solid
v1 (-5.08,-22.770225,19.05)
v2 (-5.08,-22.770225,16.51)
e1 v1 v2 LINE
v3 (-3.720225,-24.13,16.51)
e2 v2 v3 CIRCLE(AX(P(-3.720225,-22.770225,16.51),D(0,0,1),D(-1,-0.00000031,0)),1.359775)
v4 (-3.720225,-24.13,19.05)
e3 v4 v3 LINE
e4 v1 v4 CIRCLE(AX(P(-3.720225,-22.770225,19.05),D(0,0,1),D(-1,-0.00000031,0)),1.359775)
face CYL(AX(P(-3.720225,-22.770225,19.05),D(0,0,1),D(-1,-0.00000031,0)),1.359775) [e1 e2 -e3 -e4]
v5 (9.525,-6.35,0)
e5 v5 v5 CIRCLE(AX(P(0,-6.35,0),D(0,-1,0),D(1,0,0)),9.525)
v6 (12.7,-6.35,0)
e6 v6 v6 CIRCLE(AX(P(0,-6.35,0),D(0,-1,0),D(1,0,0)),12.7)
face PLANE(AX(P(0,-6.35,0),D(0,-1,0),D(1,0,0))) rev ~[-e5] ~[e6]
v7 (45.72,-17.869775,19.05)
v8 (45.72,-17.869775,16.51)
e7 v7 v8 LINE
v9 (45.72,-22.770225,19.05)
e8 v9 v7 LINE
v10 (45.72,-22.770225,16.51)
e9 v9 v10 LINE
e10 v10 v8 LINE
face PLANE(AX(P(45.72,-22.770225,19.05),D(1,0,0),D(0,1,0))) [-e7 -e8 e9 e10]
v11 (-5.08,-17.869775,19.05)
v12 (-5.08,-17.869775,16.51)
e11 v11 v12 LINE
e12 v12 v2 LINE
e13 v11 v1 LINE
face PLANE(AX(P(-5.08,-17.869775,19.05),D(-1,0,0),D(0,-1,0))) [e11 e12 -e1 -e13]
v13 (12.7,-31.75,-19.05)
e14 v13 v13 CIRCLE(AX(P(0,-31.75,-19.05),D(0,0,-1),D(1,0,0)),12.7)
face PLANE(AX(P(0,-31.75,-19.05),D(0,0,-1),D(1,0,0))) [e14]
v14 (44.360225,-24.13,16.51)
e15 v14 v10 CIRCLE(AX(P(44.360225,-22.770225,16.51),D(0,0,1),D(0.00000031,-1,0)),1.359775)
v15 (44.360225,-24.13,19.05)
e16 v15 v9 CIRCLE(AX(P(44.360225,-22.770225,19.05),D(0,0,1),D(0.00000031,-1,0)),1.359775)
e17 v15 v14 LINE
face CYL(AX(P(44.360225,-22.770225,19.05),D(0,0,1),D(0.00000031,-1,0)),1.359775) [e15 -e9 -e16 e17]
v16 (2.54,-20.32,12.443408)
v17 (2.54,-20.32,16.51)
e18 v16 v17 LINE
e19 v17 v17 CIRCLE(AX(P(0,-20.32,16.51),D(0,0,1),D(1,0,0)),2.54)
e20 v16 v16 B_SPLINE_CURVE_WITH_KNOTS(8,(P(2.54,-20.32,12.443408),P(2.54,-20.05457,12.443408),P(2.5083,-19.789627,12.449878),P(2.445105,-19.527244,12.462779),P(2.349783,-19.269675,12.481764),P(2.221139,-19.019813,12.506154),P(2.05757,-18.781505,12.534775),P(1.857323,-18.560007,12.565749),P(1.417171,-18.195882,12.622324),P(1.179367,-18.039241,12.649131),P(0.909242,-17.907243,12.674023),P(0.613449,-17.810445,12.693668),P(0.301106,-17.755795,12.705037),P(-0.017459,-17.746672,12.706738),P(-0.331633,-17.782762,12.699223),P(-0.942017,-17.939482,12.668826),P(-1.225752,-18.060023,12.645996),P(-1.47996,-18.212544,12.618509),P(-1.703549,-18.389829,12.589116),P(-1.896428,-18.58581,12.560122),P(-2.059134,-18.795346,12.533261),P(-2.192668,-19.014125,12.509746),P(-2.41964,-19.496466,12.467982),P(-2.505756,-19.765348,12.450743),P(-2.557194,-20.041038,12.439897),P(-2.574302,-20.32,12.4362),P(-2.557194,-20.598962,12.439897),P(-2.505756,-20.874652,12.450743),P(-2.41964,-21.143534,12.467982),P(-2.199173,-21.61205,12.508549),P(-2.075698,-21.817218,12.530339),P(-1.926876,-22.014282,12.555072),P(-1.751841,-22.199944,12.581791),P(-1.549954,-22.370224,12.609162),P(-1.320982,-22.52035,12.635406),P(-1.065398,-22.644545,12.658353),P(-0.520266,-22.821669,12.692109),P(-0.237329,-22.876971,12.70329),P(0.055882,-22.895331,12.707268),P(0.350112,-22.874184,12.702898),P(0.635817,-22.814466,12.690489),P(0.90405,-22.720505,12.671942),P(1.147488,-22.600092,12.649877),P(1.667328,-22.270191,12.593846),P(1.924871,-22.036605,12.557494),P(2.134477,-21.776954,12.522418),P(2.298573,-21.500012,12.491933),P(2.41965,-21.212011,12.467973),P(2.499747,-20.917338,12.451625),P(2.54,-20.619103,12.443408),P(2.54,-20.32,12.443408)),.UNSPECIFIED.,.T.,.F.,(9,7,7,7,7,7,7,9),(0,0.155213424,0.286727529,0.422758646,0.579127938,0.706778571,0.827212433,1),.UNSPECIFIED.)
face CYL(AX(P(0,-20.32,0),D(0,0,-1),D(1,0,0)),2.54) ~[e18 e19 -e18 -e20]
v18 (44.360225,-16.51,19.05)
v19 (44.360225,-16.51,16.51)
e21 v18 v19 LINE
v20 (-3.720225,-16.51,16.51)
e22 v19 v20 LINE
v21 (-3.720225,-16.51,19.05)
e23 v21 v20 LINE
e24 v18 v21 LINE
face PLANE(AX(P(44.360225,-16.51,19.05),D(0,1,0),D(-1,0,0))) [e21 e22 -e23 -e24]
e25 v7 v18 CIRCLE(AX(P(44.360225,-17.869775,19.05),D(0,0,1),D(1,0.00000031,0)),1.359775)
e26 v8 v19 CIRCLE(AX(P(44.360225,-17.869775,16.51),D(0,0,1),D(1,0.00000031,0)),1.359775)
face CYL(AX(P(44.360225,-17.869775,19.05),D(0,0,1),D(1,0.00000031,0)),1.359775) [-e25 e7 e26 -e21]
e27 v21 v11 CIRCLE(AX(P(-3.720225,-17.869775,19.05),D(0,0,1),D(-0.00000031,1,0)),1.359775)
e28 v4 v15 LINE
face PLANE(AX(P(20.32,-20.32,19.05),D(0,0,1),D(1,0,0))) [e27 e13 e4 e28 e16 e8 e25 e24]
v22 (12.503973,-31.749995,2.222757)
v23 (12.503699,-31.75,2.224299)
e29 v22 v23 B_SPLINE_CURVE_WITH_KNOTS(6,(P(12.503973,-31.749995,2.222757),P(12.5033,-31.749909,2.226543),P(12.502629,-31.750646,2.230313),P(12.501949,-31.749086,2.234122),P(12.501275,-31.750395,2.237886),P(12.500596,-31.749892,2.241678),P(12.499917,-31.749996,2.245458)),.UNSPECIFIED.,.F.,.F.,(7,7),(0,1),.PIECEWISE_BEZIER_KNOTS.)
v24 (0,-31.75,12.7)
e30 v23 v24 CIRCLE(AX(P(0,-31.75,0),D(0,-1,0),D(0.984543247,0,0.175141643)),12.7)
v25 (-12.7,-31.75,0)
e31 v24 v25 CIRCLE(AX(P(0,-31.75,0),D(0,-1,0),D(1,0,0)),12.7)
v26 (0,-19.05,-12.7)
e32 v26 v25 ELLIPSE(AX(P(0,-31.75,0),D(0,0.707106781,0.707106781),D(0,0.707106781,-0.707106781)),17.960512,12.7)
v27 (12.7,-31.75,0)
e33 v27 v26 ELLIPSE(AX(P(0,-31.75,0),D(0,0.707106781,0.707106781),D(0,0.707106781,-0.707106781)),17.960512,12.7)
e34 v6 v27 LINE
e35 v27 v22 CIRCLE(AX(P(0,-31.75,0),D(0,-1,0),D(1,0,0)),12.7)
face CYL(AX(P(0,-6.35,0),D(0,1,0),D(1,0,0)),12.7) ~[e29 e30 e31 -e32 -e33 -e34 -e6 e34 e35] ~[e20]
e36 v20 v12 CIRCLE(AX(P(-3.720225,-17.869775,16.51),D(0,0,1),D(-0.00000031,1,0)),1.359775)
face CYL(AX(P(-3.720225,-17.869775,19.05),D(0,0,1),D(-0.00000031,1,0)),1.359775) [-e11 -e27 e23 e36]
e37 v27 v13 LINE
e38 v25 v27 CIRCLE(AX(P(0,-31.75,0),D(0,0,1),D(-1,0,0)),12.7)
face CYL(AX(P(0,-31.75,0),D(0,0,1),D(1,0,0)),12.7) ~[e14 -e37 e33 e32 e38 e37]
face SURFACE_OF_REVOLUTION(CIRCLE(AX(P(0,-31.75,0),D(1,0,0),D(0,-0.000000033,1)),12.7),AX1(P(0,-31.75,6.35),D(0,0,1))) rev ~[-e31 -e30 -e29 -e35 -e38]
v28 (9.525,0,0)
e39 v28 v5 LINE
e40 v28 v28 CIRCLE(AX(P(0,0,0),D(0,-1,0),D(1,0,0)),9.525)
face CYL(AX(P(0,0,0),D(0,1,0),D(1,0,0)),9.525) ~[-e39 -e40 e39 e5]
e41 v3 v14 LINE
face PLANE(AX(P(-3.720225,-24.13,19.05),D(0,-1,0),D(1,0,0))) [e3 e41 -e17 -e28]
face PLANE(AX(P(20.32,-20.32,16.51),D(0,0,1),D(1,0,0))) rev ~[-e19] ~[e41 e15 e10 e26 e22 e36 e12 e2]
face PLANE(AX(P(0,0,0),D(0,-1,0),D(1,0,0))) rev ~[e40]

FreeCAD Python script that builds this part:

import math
import FreeCAD as App
import Part
import Sketcher

V = App.Vector
Q = App.Units.Quantity

doc = App.newDocument("Part")
body = doc.addObject("PartDesign::Body", "Body")

# Sketch on XZ plane
sketch1 = body.newObject("Sketcher::SketchObject", "Sketch")
sketch1.AttachmentSupport = (doc.getObject("XZ_Plane"), [""])
sketch1.MapMode = "FlatFace"
sketch1.addGeometry(Part.Circle(V(0, 0, 0), V(0, 0, 1), 9.525), False)
sketch1.addConstraint(Sketcher.Constraint("Coincident", 0, 3, -1, 1))
sketch1.addConstraint(Sketcher.Constraint("Diameter", 0, Q("0.75 in")))
pad1 = body.newObject("PartDesign::Pad", "Pad")
pad1.Profile = sketch1
pad1.Length = Q("0.25 in")

# Sketch on XZ plane
sketch2 = body.newObject("Sketcher::SketchObject", "Sketch001")
sketch2.AttachmentSupport = (doc.getObject("XZ_Plane"), [""])
sketch2.MapMode = "FlatFace"
sketch2.AttachmentOffset = App.Placement(V(0, 0, 0.25 * 25.4), App.Rotation())
sketch2.addGeometry(Part.Circle(V(0, 0, 0), V(0, 0, 1), 12.7), False)
sketch2.addConstraint(Sketcher.Constraint("Coincident", 0, 3, -1, 1))
sketch2.addConstraint(Sketcher.Constraint("Diameter", 0, Q("1 in")))
pad2 = body.newObject("PartDesign::Pad", "Pad001")
pad2.Profile = sketch2
pad2.Length = Q("1 in")

# Sketch on YZ plane
sketch3 = body.newObject("Sketcher::SketchObject", "Sketch002")
sketch3.AttachmentSupport = (doc.getObject("YZ_Plane"), [""])
sketch3.MapMode = "FlatFace"
sketch3.addGeometry(Part.LineSegment(V(-31.75, 0, 0), V(-31.75, 12.7, 0)), False)
sketch3.addGeometry(Part.ArcOfCircle(Part.Circle(V(-31.75, 0, 0), V(0, 0, 1), 12.7), math.radians(90.000002), math.radians(179.999998)), False)
sketch3.addGeometry(Part.LineSegment(V(-44.45, 0, 0), V(-31.75, 0, 0)), False)
sketch3.addGeometry(Part.LineSegment(V(-31.75, 0, 0), V(-31.75, 12.7, 0)), True)  # axis
sketch3.addConstraint(Sketcher.Constraint("Coincident", 0, 2, 1, 1))
sketch3.addConstraint(Sketcher.Constraint("Coincident", 1, 2, 2, 1))
sketch3.addConstraint(Sketcher.Constraint("Coincident", 2, 2, 0, 1))
sketch3.addConstraint(Sketcher.Constraint("Vertical", 0))
sketch3.addConstraint(Sketcher.Constraint("Horizontal", 2))
sketch3.addConstraint(Sketcher.Constraint("Vertical", 3))
sketch3.addConstraint(Sketcher.Constraint("Coincident", 2, 2, 1, 3))
sketch3.addConstraint(Sketcher.Constraint("Coincident", 3, 1, 1, 3))
sketch3.addConstraint(Sketcher.Constraint("PointOnObject", 1, 3, -1))
sketch3.addConstraint(Sketcher.Constraint("Equal", 0, 3))
sketch3.addConstraint(Sketcher.Constraint("Radius", 1, Q("0.5 in")))
sketch3.addConstraint(Sketcher.Constraint("DistanceX", 1, 3, -1, 1, Q("1.25 in")))
revolution = body.newObject("PartDesign::Revolution", "Revolution")
revolution.Profile = sketch3
revolution.ReferenceAxis = (sketch3, ["Axis0"])
revolution.Angle = 360

# Sketch on XY plane
sketch4 = body.newObject("Sketcher::SketchObject", "Sketch003")
sketch4.AttachmentSupport = (doc.getObject("XY_Plane"), [""])
sketch4.MapMode = "FlatFace"
sketch4.addGeometry(Part.Circle(V(0, -31.75, 0), V(0, 0, 1), 12.7), False)
sketch4.addConstraint(Sketcher.Constraint("PointOnObject", 0, 3, -2))
sketch4.addConstraint(Sketcher.Constraint("Diameter", 0, Q("1 in")))
sketch4.addConstraint(Sketcher.Constraint("DistanceY", 0, 3, -1, 1, Q("1.25 in")))
pad3 = body.newObject("PartDesign::Pad", "Pad002")
pad3.Profile = sketch4
pad3.Length = Q("0.75 in")
pad3.Reversed = True

# Sketch on XY plane
sketch5 = body.newObject("Sketcher::SketchObject", "Sketch004")
sketch5.AttachmentSupport = (doc.getObject("XY_Plane"), [""])
sketch5.MapMode = "FlatFace"
sketch5.addGeometry(Part.Circle(V(0, -20.32, 0), V(0, 0, 1), 2.54), False)
sketch5.addConstraint(Sketcher.Constraint("PointOnObject", 0, 3, -2))
sketch5.addConstraint(Sketcher.Constraint("Diameter", 0, Q("0.2 in")))
sketch5.addConstraint(Sketcher.Constraint("DistanceY", 0, 3, -1, 1, Q("0.8 in")))
pad4 = body.newObject("PartDesign::Pad", "Pad003")
pad4.Profile = sketch5
pad4.Length = Q("0.75 in")

# Sketch on XY plane
sketch6 = body.newObject("Sketcher::SketchObject", "Sketch005")
sketch6.AttachmentSupport = (doc.getObject("XY_Plane"), [""])
sketch6.MapMode = "FlatFace"
sketch6.AttachmentOffset = App.Placement(V(0, 0, 0.75 * 25.4), App.Rotation())
sketch6.addGeometry(Part.ArcOfCircle(Part.Circle(V(44.360225, -17.869775, 0), V(0, 0, 1), 1.359775), math.radians(0.000018), math.radians(89.999982)), False)
sketch6.addGeometry(Part.LineSegment(V(44.360225, -16.51, 0), V(-3.720225, -16.51, 0)), False)
sketch6.addGeometry(Part.ArcOfCircle(Part.Circle(V(-3.720225, -17.869775, 0), V(0, 0, 1), 1.359775), math.radians(90.000018), math.radians(179.999982)), False)
sketch6.addGeometry(Part.LineSegment(V(-5.08, -17.869775, 0), V(-5.08, -22.770225, 0)), False)
sketch6.addGeometry(Part.ArcOfCircle(Part.Circle(V(-3.720225, -22.770225, 0), V(0, 0, 1), 1.359775), math.radians(-179.999982), math.radians(-90.000018)), False)
sketch6.addGeometry(Part.LineSegment(V(-3.720225, -24.13, 0), V(44.360225, -24.13, 0)), False)
sketch6.addGeometry(Part.ArcOfCircle(Part.Circle(V(44.360225, -22.770225, 0), V(0, 0, 1), 1.359775), math.radians(-89.999982), math.radians(-0.000018)), False)
sketch6.addGeometry(Part.LineSegment(V(45.72, -22.770225, 0), V(45.72, -17.869775, 0)), False)
sketch6.addGeometry(Part.Circle(V(0, -20.32, 0), V(0, 0, 1), 2.54), False)
sketch6.addConstraint(Sketcher.Constraint("Tangent", 0, 2, 1, 1))
sketch6.addConstraint(Sketcher.Constraint("Tangent", 1, 2, 2, 1))
sketch6.addConstraint(Sketcher.Constraint("Tangent", 2, 2, 3, 1))
sketch6.addConstraint(Sketcher.Constraint("Tangent", 3, 2, 4, 1))
sketch6.addConstraint(Sketcher.Constraint("Tangent", 4, 2, 5, 1))
sketch6.addConstraint(Sketcher.Constraint("Tangent", 5, 2, 6, 1))
sketch6.addConstraint(Sketcher.Constraint("Tangent", 6, 2, 7, 1))
sketch6.addConstraint(Sketcher.Constraint("Tangent", 7, 2, 0, 1))
sketch6.addConstraint(Sketcher.Constraint("Horizontal", 1))
sketch6.addConstraint(Sketcher.Constraint("Vertical", 3))
sketch6.addConstraint(Sketcher.Constraint("Horizontal", 5))
sketch6.addConstraint(Sketcher.Constraint("Vertical", 7))
sketch6.addConstraint(Sketcher.Constraint("Equal", 0, 2))
sketch6.addConstraint(Sketcher.Constraint("Equal", 2, 4))
sketch6.addConstraint(Sketcher.Constraint("Equal", 4, 6))
sketch6.addConstraint(Sketcher.Constraint("PointOnObject", 8, 3, -2))
sketch6.addConstraint(Sketcher.Constraint("Diameter", 8, Q("0.2 in")))
sketch6.addConstraint(Sketcher.Constraint("DistanceY", 8, 3, -1, 1, Q("0.8 in")))
sketch6.addConstraint(Sketcher.Constraint("DistanceX", 2, 2, -1, 1, Q("0.2 in")))
sketch6.addConstraint(Sketcher.Constraint("DistanceX", -1, 1, 6, 2, Q("1.8 in")))
sketch6.addConstraint(Sketcher.Constraint("DistanceY", 5, 2, 0, 2, Q("0.3 in")))
sketch6.addConstraint(Sketcher.Constraint("DistanceY", 0, 2, -1, 1, Q("0.65 in")))
sketch6.addConstraint(Sketcher.Constraint("Radius", 0, Q("1.359775 mm")))
pad5 = body.newObject("PartDesign::Pad", "Pad004")
pad5.Profile = sketch6
pad5.Length = Q("0.1 in")
pad5.Reversed = True

doc.recompute()
